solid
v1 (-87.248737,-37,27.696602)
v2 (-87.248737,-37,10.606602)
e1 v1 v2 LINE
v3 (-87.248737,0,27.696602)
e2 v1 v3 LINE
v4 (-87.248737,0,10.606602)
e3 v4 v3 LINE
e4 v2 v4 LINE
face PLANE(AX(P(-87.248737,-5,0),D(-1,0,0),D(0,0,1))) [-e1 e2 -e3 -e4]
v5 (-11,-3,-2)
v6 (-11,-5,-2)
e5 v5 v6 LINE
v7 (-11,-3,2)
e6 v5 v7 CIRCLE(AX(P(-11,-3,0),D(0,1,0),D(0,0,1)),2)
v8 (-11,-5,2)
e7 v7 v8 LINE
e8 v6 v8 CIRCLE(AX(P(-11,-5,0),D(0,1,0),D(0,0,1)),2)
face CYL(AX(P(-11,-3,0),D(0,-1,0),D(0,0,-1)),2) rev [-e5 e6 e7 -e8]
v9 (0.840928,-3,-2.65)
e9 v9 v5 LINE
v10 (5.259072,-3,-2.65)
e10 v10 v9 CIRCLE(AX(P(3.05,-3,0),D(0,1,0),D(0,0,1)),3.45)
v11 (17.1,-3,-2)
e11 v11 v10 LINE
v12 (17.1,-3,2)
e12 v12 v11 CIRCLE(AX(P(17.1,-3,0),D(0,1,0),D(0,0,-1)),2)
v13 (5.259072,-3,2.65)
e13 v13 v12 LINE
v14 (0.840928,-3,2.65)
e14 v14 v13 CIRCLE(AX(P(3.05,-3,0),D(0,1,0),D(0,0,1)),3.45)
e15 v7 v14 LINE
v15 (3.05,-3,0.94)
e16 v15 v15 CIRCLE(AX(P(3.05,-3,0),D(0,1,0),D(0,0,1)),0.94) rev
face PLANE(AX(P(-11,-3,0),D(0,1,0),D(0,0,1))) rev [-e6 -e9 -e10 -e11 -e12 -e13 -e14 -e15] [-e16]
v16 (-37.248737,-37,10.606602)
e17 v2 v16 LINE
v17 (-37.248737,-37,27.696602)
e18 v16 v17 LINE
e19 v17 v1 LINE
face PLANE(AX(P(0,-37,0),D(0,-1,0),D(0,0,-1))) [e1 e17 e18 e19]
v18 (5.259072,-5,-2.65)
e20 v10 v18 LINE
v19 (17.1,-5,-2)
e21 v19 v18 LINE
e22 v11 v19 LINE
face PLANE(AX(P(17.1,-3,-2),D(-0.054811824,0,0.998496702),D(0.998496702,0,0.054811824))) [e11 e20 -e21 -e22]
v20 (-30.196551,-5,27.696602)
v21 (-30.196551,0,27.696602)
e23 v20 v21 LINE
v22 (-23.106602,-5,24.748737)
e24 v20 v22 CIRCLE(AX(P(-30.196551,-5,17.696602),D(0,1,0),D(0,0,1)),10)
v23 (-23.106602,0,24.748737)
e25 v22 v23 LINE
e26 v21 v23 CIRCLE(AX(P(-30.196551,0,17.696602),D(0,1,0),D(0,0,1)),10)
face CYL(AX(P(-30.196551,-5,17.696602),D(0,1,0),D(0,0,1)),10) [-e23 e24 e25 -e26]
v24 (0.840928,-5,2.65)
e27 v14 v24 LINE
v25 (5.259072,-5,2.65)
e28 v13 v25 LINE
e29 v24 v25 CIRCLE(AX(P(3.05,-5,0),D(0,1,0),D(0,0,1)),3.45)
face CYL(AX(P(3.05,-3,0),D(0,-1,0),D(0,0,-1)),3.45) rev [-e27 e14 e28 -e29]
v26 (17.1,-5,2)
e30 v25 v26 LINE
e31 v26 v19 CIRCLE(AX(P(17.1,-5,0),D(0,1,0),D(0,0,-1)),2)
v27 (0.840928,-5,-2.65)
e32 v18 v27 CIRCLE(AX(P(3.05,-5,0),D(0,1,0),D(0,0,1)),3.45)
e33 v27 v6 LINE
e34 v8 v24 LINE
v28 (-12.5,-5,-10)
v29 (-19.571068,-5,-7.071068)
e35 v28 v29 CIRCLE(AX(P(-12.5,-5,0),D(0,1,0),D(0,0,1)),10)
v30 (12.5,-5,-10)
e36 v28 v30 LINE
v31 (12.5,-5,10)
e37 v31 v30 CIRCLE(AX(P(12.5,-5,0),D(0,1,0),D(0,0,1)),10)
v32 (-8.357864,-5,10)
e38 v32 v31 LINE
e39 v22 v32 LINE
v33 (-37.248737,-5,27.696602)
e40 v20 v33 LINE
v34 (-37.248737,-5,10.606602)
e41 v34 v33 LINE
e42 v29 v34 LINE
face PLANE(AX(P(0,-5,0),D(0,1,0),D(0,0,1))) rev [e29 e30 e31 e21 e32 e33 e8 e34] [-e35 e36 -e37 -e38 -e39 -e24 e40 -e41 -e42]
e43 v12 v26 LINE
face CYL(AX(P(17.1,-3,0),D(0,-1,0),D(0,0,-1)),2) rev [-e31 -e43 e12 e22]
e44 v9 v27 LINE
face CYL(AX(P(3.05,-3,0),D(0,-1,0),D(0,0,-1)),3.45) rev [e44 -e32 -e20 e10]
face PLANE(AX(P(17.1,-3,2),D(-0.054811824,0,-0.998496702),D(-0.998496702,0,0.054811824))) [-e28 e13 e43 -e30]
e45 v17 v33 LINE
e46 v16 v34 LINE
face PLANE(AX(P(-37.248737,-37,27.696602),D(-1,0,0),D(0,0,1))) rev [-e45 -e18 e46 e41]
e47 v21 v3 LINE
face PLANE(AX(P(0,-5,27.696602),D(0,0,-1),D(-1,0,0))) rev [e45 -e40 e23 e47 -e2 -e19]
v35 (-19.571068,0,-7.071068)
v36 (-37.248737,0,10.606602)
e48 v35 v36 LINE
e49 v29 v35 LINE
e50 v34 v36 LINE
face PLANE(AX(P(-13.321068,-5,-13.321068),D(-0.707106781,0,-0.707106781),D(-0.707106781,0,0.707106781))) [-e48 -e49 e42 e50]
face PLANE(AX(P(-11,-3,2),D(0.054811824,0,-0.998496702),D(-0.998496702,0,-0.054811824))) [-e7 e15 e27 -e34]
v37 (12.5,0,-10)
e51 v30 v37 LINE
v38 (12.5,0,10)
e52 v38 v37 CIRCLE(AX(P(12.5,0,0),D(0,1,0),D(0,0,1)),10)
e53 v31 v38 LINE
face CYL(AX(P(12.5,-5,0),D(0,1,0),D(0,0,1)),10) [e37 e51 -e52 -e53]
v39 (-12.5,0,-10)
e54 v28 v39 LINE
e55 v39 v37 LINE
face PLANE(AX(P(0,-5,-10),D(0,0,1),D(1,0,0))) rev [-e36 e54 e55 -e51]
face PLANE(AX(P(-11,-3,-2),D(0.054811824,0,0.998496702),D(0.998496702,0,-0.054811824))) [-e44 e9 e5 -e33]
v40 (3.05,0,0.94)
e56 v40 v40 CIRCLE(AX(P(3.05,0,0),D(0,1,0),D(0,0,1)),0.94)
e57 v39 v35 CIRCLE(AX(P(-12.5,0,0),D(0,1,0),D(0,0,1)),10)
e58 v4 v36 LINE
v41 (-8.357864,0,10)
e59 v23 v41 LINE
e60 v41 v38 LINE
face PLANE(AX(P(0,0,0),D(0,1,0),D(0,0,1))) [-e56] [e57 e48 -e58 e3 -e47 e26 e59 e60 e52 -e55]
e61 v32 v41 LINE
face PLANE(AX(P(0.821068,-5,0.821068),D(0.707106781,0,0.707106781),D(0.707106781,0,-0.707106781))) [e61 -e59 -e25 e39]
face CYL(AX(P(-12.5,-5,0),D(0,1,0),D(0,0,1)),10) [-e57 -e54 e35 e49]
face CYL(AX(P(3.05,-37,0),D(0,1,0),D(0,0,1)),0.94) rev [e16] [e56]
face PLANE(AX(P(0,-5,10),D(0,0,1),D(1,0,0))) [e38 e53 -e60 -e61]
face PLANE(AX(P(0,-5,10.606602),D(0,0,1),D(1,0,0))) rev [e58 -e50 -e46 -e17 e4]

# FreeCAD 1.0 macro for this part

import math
import FreeCAD as App
import Part
import Sketcher
from FreeCAD import Vector
Q = App.Units.Quantity

doc = App.newDocument("Part")
body = doc.addObject("PartDesign::Body", "Body")

# Sketch on XZ plane
sketch1 = body.newObject("Sketcher::SketchObject", "Sketch")
sketch1.AttachmentSupport = (doc.getObject("XZ_Plane"), [""])
sketch1.MapMode = "FlatFace"
sketch1.addGeometry(Part.LineSegment(Vector(-20, -7, 0), Vector(-37, 11, 0)), False)
sketch1.addGeometry(Part.LineSegment(Vector(-37, 11, 0), Vector(-87, 11, 0)), False)
sketch1.addGeometry(Part.LineSegment(Vector(-87, 11, 0), Vector(-87, 28, 0)), False)
sketch1.addGeometry(Part.LineSegment(Vector(-87, 28, 0), Vector(-30, 28, 0)), False)
sketch1.addGeometry(Part.ArcOfCircle(Part.Circle(Vector(-30, 18, 0), Vector(0, 0, 1), 10), math.radians(45), math.radians(90)), False)
sketch1.addGeometry(Part.LineSegment(Vector(-23, 25, 0), Vector(-8, 10, 0)), False)
sketch1.addGeometry(Part.LineSegment(Vector(-8, 10, 0), Vector(12, 10, 0)), False)
sketch1.addGeometry(Part.ArcOfCircle(Part.Circle(Vector(12, 0, 0), Vector(0, 0, 1), 10), math.radians(-90), math.radians(90)), False)
sketch1.addGeometry(Part.LineSegment(Vector(12, -10, 0), Vector(-12, -10, 0)), False)
sketch1.addGeometry(Part.ArcOfCircle(Part.Circle(Vector(-12, 0, 0), Vector(0, 0, 1), 10), math.radians(-135), math.radians(-90)), False)
sketch1.addConstraint(Sketcher.Constraint("Coincident", 0, 2, 1, 1))
sketch1.addConstraint(Sketcher.Constraint("Coincident", 1, 2, 2, 1))
sketch1.addConstraint(Sketcher.Constraint("Coincident", 2, 2, 3, 1))
sketch1.addConstraint(Sketcher.Constraint("Tangent", 3, 2, 4, 2))
sketch1.addConstraint(Sketcher.Constraint("Coincident", 4, 1, 5, 1))
sketch1.addConstraint(Sketcher.Constraint("Coincident", 5, 2, 6, 1))
sketch1.addConstraint(Sketcher.Constraint("Tangent", 6, 2, 7, 2))
sketch1.addConstraint(Sketcher.Constraint("Tangent", 7, 1, 8, 1))
sketch1.addConstraint(Sketcher.Constraint("Tangent", 8, 2, 9, 2))
sketch1.addConstraint(Sketcher.Constraint("Tangent", 9, 1, 0, 1))
sketch1.addConstraint(Sketcher.Constraint("Horizontal", 1))
sketch1.addConstraint(Sketcher.Constraint("Vertical", 2))
sketch1.addConstraint(Sketcher.Constraint("Horizontal", 3))
sketch1.addConstraint(Sketcher.Constraint("Horizontal", 6))
sketch1.addConstraint(Sketcher.Constraint("Horizontal", 8))
sketch1.addConstraint(Sketcher.Constraint("Equal", 4, 7))
sketch1.addConstraint(Sketcher.Constraint("Equal", 7, 9))
sketch1.addConstraint(Sketcher.Constraint("Symmetric", 7, 3, 9, 3, -1, 1))
sketch1.addConstraint(Sketcher.Constraint("Parallel", 0, 5))
sketch1.addConstraint(Sketcher.Constraint("Radius", 4, Q("10 mm")))
sketch1.addConstraint(Sketcher.Constraint("DistanceX", 1, 2, 1, 1, Q("50 mm")))
sketch1.addConstraint(Sketcher.Constraint("DistanceX", 8, 2, 8, 1, Q("25 mm")))
sketch1.addConstraint(Sketcher.Constraint("Angle", 0, Q("135 deg")))
sketch1.addConstraint(Sketcher.Constraint("Distance", 0, Q("25 mm")))
sketch1.addConstraint(Sketcher.Constraint("DistanceY", 2, 1, 2, 2, Q("17.09 mm")))
sketch1.addConstraint(Sketcher.Constraint("DistanceX", 4, 1, -1, 1, Q("23.106602 mm")))
sketch1.addConstraint(Sketcher.Constraint("DistanceX", 3, 1, 3, 2, Q("57.052186 mm")))
pad1 = body.newObject("PartDesign::Pad", "Pad")
pad1.Profile = sketch1
pad1.Length = 5

# Sketch on XZ plane
sketch2 = body.newObject("Sketcher::SketchObject", "Sketch001")
sketch2.AttachmentSupport = (doc.getObject("XZ_Plane"), [""])
sketch2.MapMode = "FlatFace"
sketch2.AttachmentOffset = App.Placement(Vector(0, 0, 5), App.Rotation())
sketch2.addGeometry(Part.LineSegment(Vector(-87, 28, 0), Vector(-87, 11, 0)), False)
sketch2.addGeometry(Part.LineSegment(Vector(-87, 11, 0), Vector(-37, 11, 0)), False)
sketch2.addGeometry(Part.LineSegment(Vector(-37, 11, 0), Vector(-37, 28, 0)), False)
sketch2.addGeometry(Part.LineSegment(Vector(-37, 28, 0), Vector(-87, 28, 0)), False)
sketch2.addConstraint(Sketcher.Constraint("Coincident", 0, 2, 1, 1))
sketch2.addConstraint(Sketcher.Constraint("Coincident", 1, 2, 2, 1))
sketch2.addConstraint(Sketcher.Constraint("Coincident", 2, 2, 3, 1))
sketch2.addConstraint(Sketcher.Constraint("Coincident", 3, 2, 0, 1))
sketch2.addConstraint(Sketcher.Constraint("Vertical", 0))
sketch2.addConstraint(Sketcher.Constraint("Horizontal", 1))
sketch2.addConstraint(Sketcher.Constraint("Vertical", 2))
sketch2.addConstraint(Sketcher.Constraint("Horizontal", 3))
sketch2.addConstraint(Sketcher.Constraint("DistanceX", 1, 1, 1, 2, Q("50 mm")))
sketch2.addConstraint(Sketcher.Constraint("DistanceY", 0, 2, 0, 1, Q("17.09 mm")))
sketch2.addConstraint(Sketcher.Constraint("DistanceY", -1, 1, 0, 2, Q("10.606602 mm")))
sketch2.addConstraint(Sketcher.Constraint("DistanceX", 0, 2, -1, 1, Q("87.248737 mm")))
pad2 = body.newObject("PartDesign::Pad", "Pad001")
pad2.Profile = sketch2
pad2.Length = 32

# Sketch on XZ plane
sketch3 = body.newObject("Sketcher::SketchObject", "Sketch002")
sketch3.AttachmentSupport = (doc.getObject("XZ_Plane"), [""])
sketch3.MapMode = "FlatFace"
sketch3.addGeometry(Part.Circle(Vector(3, 0, 0), Vector(0, 0, 1), 0.9), False)
sketch3.addConstraint(Sketcher.Constraint("PointOnObject", 0, 3, -1))
sketch3.addConstraint(Sketcher.Constraint("Diameter", 0, Q("1.88 mm")))
sketch3.addConstraint(Sketcher.Constraint("DistanceX", -1, 1, 0, 3, Q("3.05 mm")))
pocket1 = body.newObject("PartDesign::Pocket", "Pocket")
pocket1.Profile = sketch3
pocket1.Type = "ThroughAll"
pocket1.Reversed = True

# Sketch on XZ plane
sketch4 = body.newObject("Sketcher::SketchObject", "Sketch003")
sketch4.AttachmentSupport = (doc.getObject("XZ_Plane"), [""])
sketch4.MapMode = "FlatFace"
sketch4.AttachmentOffset = App.Placement(Vector(0, 0, 5), App.Rotation())
sketch4.addGeometry(Part.LineSegment(Vector(0.8, -2.6, 0), Vector(-11, -2, 0)), False)
sketch4.addGeometry(Part.ArcOfCircle(Part.Circle(Vector(-11, 0, 0), Vector(0, 0, 1), 2), math.radians(90), math.radians(270)), False)
sketch4.addGeometry(Part.LineSegment(Vector(-11, 2, 0), Vector(0.8, 2.6, 0)), False)
sketch4.addGeometry(Part.ArcOfCircle(Part.Circle(Vector(3, 0, 0), Vector(0, 0, 1), 3.4), math.radians(50), math.radians(130)), False)
sketch4.addGeometry(Part.LineSegment(Vector(5.3, 2.6, 0), Vector(17.1, 2, 0)), False)
sketch4.addGeometry(Part.ArcOfCircle(Part.Circle(Vector(17.1, 0, 0), Vector(0, 0, 1), 2), math.radians(-90), math.radians(90)), False)
sketch4.addGeometry(Part.LineSegment(Vector(17.1, -2, 0), Vector(5.3, -2.6, 0)), False)
sketch4.addGeometry(Part.ArcOfCircle(Part.Circle(Vector(3, 0, 0), Vector(0, 0, 1), 3.4), math.radians(-130), math.radians(-50)), False)
sketch4.addConstraint(Sketcher.Constraint("Coincident", 0, 2, 1, 2))
sketch4.addConstraint(Sketcher.Constraint("Coincident", 1, 1, 2, 1))
sketch4.addConstraint(Sketcher.Constraint("Coincident", 2, 2, 3, 2))
sketch4.addConstraint(Sketcher.Constraint("Coincident", 3, 1, 4, 1))
sketch4.addConstraint(Sketcher.Constraint("Coincident", 4, 2, 5, 2))
sketch4.addConstraint(Sketcher.Constraint("Coincident", 5, 1, 6, 1))
sketch4.addConstraint(Sketcher.Constraint("Coincident", 6, 2, 7, 2))
sketch4.addConstraint(Sketcher.Constraint("Coincident", 7, 1, 0, 1))
sketch4.addConstraint(Sketcher.Constraint("Coincident", 7, 3, 3, 3))
sketch4.addConstraint(Sketcher.Constraint("Equal", 1, 5))
sketch4.addConstraint(Sketcher.Constraint("Equal", 3, 7))
sketch4.addConstraint(Sketcher.Constraint("Symmetric", 0, 2, 1, 1, -1))
sketch4.addConstraint(Sketcher.Constraint("Symmetric", 4, 2, 5, 1, -1))
sketch4.addConstraint(Sketcher.Constraint("Symmetric", 3, 1, 6, 2, -1))
sketch4.addConstraint(Sketcher.Constraint("Parallel", 0, 4))
sketch4.addConstraint(Sketcher.Constraint("Parallel", 2, 6))
sketch4.addConstraint(Sketcher.Constraint("Horizontal", 2, 2, 3, 1))
sketch4.addConstraint(Sketcher.Constraint("Vertical", 1, 3, 0, 2))
sketch4.addConstraint(Sketcher.Constraint("Vertical", 5, 3, 4, 2))
sketch4.addConstraint(Sketcher.Constraint("Radius", 1, Q("2 mm")))
sketch4.addConstraint(Sketcher.Constraint("Radius", 3, Q("3.45 mm")))
sketch4.addConstraint(Sketcher.Constraint("DistanceX", 1, 3, -1, 1, Q("11 mm")))
sketch4.addConstraint(Sketcher.Constraint("DistanceX", -1, 1, 5, 3, Q("17.1 mm")))
sketch4.addConstraint(Sketcher.Constraint("DistanceY", 6, 2, 3, 1, Q("5.3 mm")))
pocket2 = body.newObject("PartDesign::Pocket", "Pocket001")
pocket2.Profile = sketch4
pocket2.Length = 2

doc.recompute()
